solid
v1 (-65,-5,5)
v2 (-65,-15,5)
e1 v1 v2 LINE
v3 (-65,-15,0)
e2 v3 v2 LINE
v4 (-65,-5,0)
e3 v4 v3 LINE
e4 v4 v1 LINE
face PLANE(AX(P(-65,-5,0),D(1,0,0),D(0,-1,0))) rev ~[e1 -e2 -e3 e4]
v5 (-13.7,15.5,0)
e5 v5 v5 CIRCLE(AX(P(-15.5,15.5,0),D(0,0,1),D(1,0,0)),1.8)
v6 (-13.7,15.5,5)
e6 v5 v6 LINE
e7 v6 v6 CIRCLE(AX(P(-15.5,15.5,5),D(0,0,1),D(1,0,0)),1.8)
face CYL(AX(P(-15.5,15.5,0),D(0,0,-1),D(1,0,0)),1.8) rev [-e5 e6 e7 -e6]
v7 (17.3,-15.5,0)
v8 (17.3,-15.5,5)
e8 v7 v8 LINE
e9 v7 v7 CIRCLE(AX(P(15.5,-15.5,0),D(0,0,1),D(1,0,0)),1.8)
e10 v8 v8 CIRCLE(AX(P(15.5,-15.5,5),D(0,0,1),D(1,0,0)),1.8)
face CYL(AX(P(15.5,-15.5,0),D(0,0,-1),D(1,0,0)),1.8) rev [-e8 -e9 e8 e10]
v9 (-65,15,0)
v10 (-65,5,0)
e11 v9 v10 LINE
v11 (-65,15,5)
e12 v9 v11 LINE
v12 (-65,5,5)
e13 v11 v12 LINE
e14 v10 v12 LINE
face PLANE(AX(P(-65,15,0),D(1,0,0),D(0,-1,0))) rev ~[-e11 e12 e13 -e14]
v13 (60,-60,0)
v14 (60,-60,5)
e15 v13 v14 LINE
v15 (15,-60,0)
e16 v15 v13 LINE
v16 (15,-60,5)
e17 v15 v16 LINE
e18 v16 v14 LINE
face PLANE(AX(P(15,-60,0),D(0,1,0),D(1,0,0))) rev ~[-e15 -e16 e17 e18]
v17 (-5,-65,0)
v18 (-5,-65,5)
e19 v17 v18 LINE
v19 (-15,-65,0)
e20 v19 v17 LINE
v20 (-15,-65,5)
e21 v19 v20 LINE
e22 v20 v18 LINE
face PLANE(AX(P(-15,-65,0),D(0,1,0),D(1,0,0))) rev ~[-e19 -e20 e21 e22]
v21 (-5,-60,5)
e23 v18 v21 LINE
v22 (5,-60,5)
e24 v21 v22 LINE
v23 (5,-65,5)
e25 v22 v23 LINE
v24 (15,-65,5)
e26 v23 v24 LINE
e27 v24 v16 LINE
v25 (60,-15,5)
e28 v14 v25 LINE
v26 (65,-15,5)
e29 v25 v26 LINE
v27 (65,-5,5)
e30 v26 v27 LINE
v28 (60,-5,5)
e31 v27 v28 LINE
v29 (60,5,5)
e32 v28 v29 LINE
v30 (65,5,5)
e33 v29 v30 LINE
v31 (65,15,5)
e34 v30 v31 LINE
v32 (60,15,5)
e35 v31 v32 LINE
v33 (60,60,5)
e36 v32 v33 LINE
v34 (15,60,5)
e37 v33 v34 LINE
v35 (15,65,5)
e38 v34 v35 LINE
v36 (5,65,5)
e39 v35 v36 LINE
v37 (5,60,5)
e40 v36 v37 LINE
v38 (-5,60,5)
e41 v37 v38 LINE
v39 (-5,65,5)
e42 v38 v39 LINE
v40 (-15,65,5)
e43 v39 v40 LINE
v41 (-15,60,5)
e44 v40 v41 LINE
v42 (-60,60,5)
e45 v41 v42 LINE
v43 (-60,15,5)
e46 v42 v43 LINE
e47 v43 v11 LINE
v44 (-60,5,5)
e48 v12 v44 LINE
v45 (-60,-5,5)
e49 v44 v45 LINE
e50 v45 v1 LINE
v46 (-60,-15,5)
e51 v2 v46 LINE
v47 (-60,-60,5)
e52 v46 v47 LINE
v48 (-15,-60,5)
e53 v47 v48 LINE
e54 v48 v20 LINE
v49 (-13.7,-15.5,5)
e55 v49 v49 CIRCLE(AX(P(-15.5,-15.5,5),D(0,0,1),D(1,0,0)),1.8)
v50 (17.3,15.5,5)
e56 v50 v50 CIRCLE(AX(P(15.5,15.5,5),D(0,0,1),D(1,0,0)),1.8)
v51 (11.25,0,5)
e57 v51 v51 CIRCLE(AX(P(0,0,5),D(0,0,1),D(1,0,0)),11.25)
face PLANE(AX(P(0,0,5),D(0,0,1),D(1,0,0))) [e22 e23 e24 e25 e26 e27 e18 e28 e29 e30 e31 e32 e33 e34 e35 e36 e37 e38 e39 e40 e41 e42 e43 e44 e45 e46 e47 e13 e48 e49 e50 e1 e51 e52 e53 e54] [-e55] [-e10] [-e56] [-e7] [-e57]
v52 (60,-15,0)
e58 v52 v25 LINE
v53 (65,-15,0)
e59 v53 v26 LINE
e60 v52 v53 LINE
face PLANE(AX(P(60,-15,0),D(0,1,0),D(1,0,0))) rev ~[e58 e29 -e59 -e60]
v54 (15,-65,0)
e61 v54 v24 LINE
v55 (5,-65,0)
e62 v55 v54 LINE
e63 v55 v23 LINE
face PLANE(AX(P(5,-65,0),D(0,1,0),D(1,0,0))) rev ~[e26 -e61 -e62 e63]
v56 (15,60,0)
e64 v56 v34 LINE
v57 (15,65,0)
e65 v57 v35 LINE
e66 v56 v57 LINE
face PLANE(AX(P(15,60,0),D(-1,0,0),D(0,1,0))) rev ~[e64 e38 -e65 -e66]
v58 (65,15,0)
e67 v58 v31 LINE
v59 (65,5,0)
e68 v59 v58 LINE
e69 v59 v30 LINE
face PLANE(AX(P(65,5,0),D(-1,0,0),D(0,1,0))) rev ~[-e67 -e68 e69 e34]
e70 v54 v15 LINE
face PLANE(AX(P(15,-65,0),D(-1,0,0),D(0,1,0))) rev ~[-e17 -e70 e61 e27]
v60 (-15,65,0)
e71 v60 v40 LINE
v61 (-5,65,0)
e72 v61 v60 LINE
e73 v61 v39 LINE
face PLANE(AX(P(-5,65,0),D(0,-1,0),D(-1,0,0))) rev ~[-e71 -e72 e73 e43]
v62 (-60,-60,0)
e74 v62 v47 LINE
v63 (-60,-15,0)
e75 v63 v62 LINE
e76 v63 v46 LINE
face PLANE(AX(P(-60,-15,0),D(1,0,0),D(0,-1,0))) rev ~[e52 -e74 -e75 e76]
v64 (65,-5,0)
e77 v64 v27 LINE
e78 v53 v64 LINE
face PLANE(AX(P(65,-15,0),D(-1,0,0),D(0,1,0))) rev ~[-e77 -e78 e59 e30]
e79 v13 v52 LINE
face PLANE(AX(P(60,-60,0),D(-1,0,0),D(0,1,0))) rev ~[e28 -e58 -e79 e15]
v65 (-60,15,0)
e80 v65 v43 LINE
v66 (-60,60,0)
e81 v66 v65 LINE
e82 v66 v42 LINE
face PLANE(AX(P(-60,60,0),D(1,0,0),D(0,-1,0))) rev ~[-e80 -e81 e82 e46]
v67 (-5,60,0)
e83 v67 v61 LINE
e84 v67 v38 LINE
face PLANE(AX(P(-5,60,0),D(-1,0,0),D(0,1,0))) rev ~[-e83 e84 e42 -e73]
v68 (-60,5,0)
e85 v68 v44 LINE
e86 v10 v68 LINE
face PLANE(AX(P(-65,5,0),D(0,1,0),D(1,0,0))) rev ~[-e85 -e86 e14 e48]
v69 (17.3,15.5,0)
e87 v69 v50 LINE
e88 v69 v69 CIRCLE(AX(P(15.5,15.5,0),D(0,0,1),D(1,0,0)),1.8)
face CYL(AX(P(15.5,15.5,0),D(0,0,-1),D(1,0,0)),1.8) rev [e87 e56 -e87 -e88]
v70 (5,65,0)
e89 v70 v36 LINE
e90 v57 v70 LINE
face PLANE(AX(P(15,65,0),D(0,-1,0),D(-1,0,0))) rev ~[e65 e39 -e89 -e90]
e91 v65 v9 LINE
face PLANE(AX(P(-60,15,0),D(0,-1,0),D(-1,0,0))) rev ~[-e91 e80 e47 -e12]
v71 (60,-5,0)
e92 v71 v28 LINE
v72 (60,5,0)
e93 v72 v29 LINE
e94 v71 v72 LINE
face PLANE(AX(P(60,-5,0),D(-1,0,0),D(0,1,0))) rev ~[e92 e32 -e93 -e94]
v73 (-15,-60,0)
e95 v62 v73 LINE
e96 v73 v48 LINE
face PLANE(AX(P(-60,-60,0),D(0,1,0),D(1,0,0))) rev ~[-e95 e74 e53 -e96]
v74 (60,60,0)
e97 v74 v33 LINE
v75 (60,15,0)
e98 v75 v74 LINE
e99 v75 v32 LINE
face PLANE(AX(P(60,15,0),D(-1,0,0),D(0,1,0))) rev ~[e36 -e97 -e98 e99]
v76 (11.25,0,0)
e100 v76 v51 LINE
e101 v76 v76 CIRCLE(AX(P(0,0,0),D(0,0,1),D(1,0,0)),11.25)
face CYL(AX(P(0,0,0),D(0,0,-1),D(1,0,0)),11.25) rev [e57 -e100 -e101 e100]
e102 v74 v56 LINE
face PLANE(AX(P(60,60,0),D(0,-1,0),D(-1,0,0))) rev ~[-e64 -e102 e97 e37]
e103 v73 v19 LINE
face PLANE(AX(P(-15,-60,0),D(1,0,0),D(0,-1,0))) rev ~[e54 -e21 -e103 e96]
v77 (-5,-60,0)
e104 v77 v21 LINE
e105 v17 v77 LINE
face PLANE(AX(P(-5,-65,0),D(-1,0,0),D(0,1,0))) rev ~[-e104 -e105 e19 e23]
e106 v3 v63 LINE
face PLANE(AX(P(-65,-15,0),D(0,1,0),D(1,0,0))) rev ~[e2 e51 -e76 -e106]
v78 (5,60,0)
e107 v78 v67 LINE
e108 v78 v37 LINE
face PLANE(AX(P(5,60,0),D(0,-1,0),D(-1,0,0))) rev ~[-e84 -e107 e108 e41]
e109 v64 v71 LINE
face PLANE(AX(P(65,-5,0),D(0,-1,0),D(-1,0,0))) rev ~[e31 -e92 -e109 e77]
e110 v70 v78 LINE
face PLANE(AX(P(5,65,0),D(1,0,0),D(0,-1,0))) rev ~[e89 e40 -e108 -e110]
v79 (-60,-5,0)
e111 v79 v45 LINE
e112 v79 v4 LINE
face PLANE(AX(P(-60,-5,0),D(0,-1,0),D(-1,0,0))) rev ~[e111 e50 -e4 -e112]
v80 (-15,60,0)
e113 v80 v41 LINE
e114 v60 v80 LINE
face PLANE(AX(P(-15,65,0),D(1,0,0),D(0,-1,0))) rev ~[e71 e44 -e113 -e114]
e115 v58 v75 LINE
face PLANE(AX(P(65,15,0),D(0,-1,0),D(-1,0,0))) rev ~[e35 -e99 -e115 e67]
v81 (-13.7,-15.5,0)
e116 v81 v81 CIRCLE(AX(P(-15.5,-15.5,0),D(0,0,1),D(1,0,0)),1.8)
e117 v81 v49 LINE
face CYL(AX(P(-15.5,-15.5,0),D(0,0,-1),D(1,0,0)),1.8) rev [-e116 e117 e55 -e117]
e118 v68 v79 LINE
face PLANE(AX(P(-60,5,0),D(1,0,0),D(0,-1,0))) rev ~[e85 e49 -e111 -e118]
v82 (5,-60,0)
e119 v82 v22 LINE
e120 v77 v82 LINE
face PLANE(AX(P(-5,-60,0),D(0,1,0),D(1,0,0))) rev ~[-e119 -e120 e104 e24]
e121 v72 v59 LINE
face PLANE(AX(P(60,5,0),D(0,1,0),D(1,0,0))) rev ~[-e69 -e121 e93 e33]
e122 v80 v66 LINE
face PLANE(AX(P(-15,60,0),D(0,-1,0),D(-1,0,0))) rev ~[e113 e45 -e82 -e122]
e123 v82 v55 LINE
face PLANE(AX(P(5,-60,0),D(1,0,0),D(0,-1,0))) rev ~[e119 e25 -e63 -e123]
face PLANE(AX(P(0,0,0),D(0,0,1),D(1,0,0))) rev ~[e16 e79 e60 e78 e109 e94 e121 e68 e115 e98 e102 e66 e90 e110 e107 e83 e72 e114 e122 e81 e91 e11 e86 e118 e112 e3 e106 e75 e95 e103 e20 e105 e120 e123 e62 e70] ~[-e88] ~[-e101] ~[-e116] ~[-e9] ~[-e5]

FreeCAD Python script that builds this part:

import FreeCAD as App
import Part
import Sketcher
from FreeCAD import Vector
Q = App.Units.Quantity


def add_polygon(sketch, points):
    """Adds a closed chain of lines whose ends are joined by coincident constraints."""
    first, n = sketch.GeometryCount, len(points)
    for a, b in zip(points, points[1:] + points[:1]):
        sketch.addGeometry(Part.LineSegment(App.Vector(*a, 0), App.Vector(*b, 0)), False)
    for i in range(n):
        sketch.addConstraint(Sketcher.Constraint("Coincident", first + i, 2, first + (i + 1) % n, 1))

doc = App.newDocument("Part")
body = doc.addObject("PartDesign::Body", "Body")

sketch1 = doc.addObject("Sketcher::SketchObject", "Sketch")
body.addObject(sketch1)
sketch1.AttachmentSupport = (doc.XY_Plane, [""])
sketch1.MapMode = "FlatFace"
add_polygon(sketch1, [(5, 60), (-5, 60), (-5, 65), (-15, 65), (-15, 60), (-60, 60), (-60, 15), (-65, 15), (-65, 5), (-60, 5), (-60, -5), (-65, -5), (-65, -15), (-60, -15), (-60, -60), (-15, -60), (-15, -65), (-5, -65), (-5, -60), (5, -60), (5, -65), (15, -65), (15, -60), (60, -60), (60, -15), (65, -15), (65, -5), (60, -5), (60, 5), (65, 5), (65, 15), (60, 15), (60, 60), (15, 60), (15, 65), (5, 65)])
sketch1.addGeometry(Part.Circle(Vector(-15.5, -15.5, 0), Vector(0, 0, 1), 1.8), False)
sketch1.addGeometry(Part.Circle(Vector(15.5, -15.5, 0), Vector(0, 0, 1), 1.8), False)
sketch1.addGeometry(Part.Circle(Vector(-15.5, 15.5, 0), Vector(0, 0, 1), 1.8), False)
sketch1.addGeometry(Part.Circle(Vector(0, 0, 0), Vector(0, 0, 1), 11.2), False)
sketch1.addGeometry(Part.Circle(Vector(15.5, 15.5, 0), Vector(0, 0, 1), 1.8), False)
sketch1.addConstraint([
    Sketcher.Constraint("Horizontal", 0),
    Sketcher.Constraint("Vertical", 1),
    Sketcher.Constraint("Horizontal", 2),
    Sketcher.Constraint("Vertical", 3),
    Sketcher.Constraint("Horizontal", 4),
    Sketcher.Constraint("Vertical", 5),
    Sketcher.Constraint("Horizontal", 6),
    Sketcher.Constraint("Vertical", 7),
    Sketcher.Constraint("Horizontal", 8),
    Sketcher.Constraint("Vertical", 9),
    Sketcher.Constraint("Horizontal", 10),
    Sketcher.Constraint("Vertical", 11),
    Sketcher.Constraint("Horizontal", 12),
    Sketcher.Constraint("Vertical", 13),
    Sketcher.Constraint("Horizontal", 14),
    Sketcher.Constraint("Vertical", 15),
    Sketcher.Constraint("Horizontal", 16),
    Sketcher.Constraint("Vertical", 17),
    Sketcher.Constraint("Horizontal", 18),
    Sketcher.Constraint("Vertical", 19),
    Sketcher.Constraint("Horizontal", 20),
    Sketcher.Constraint("Vertical", 21),
    Sketcher.Constraint("Horizontal", 22),
    Sketcher.Constraint("Vertical", 23),
    Sketcher.Constraint("Horizontal", 24),
    Sketcher.Constraint("Vertical", 25),
    Sketcher.Constraint("Horizontal", 26),
    Sketcher.Constraint("Vertical", 27),
    Sketcher.Constraint("Horizontal", 28),
    Sketcher.Constraint("Vertical", 29),
    Sketcher.Constraint("Horizontal", 30),
    Sketcher.Constraint("Vertical", 31),
    Sketcher.Constraint("Horizontal", 32),
    Sketcher.Constraint("Vertical", 33),
    Sketcher.Constraint("Horizontal", 34),
    Sketcher.Constraint("Vertical", 35),
    Sketcher.Constraint("Coincident", 39, 3, -1, 1),
    Sketcher.Constraint("Equal", 36, 37),
    Sketcher.Constraint("Equal", 37, 38),
    Sketcher.Constraint("Equal", 38, 40),
    Sketcher.Constraint("Symmetric", 37, 3, 38, 3, -1, 1),
    Sketcher.Constraint("Symmetric", 36, 3, 40, 3, -1, 1),
    Sketcher.Constraint("Symmetric", 0, 2, 18, 2, -1, 1),
    Sketcher.Constraint("Symmetric", 2, 2, 20, 2, -1, 1),
    Sketcher.Constraint("Symmetric", 4, 2, 22, 2, -1, 1),
    Sketcher.Constraint("Symmetric", 6, 2, 24, 2, -1, 1),
    Sketcher.Constraint("Symmetric", 8, 2, 26, 2, -1, 1),
    Sketcher.Constraint("Symmetric", 10, 2, 28, 2, -1, 1),
    Sketcher.Constraint("Symmetric", 12, 2, 30, 2, -1, 1),
    Sketcher.Constraint("Symmetric", 14, 2, 32, 2, -1, 1),
    Sketcher.Constraint("Symmetric", 16, 2, 34, 2, -1, 1),
    Sketcher.Constraint("Symmetric", 36, 3, 37, 3, -2),
    Sketcher.Constraint("Symmetric", 16, 2, 19, 2, -2),
    Sketcher.Constraint("Symmetric", 14, 2, 21, 2, -2),
    Sketcher.Constraint("Symmetric", 12, 2, 23, 2, -2),
    Sketcher.Constraint("Symmetric", 10, 2, 25, 2, -2),
    Sketcher.Constraint("Horizontal", 0, 2, 3, 2),
    Sketcher.Constraint("Vertical", 5, 2, 8, 2),
    Sketcher.Constraint("Equal", 0, 2),
    Sketcher.Constraint("Equal", 30, 1),
    Sketcher.Constraint("Equal", 32, 5),
    Sketcher.Constraint("Equal", 34, 7),
    Sketcher.Constraint("Equal", 7, 9),
    Sketcher.Constraint("Diameter", 36, Q("3.6 mm")),
    Sketcher.Constraint("Diameter", 39, Q("22.5 mm")),
    Sketcher.Constraint("DistanceX", 0, 2, 0, 1, Q("10 mm")),
    Sketcher.Constraint("DistanceX", 4, 2, 4, 1, Q("45 mm")),
    Sketcher.Constraint("DistanceX", 6, 2, 6, 1, Q("5 mm")),
    Sketcher.Constraint("DistanceX", 36, 3, 37, 3, Q("31 mm")),
    Sketcher.Constraint("DistanceY", 36, 3, 38, 3, Q("31 mm")),
])
pad1 = doc.addObject("PartDesign::Pad", "Pad")
body.addObject(pad1)
pad1.Profile = sketch1
pad1.Length = 5

doc.recompute()
